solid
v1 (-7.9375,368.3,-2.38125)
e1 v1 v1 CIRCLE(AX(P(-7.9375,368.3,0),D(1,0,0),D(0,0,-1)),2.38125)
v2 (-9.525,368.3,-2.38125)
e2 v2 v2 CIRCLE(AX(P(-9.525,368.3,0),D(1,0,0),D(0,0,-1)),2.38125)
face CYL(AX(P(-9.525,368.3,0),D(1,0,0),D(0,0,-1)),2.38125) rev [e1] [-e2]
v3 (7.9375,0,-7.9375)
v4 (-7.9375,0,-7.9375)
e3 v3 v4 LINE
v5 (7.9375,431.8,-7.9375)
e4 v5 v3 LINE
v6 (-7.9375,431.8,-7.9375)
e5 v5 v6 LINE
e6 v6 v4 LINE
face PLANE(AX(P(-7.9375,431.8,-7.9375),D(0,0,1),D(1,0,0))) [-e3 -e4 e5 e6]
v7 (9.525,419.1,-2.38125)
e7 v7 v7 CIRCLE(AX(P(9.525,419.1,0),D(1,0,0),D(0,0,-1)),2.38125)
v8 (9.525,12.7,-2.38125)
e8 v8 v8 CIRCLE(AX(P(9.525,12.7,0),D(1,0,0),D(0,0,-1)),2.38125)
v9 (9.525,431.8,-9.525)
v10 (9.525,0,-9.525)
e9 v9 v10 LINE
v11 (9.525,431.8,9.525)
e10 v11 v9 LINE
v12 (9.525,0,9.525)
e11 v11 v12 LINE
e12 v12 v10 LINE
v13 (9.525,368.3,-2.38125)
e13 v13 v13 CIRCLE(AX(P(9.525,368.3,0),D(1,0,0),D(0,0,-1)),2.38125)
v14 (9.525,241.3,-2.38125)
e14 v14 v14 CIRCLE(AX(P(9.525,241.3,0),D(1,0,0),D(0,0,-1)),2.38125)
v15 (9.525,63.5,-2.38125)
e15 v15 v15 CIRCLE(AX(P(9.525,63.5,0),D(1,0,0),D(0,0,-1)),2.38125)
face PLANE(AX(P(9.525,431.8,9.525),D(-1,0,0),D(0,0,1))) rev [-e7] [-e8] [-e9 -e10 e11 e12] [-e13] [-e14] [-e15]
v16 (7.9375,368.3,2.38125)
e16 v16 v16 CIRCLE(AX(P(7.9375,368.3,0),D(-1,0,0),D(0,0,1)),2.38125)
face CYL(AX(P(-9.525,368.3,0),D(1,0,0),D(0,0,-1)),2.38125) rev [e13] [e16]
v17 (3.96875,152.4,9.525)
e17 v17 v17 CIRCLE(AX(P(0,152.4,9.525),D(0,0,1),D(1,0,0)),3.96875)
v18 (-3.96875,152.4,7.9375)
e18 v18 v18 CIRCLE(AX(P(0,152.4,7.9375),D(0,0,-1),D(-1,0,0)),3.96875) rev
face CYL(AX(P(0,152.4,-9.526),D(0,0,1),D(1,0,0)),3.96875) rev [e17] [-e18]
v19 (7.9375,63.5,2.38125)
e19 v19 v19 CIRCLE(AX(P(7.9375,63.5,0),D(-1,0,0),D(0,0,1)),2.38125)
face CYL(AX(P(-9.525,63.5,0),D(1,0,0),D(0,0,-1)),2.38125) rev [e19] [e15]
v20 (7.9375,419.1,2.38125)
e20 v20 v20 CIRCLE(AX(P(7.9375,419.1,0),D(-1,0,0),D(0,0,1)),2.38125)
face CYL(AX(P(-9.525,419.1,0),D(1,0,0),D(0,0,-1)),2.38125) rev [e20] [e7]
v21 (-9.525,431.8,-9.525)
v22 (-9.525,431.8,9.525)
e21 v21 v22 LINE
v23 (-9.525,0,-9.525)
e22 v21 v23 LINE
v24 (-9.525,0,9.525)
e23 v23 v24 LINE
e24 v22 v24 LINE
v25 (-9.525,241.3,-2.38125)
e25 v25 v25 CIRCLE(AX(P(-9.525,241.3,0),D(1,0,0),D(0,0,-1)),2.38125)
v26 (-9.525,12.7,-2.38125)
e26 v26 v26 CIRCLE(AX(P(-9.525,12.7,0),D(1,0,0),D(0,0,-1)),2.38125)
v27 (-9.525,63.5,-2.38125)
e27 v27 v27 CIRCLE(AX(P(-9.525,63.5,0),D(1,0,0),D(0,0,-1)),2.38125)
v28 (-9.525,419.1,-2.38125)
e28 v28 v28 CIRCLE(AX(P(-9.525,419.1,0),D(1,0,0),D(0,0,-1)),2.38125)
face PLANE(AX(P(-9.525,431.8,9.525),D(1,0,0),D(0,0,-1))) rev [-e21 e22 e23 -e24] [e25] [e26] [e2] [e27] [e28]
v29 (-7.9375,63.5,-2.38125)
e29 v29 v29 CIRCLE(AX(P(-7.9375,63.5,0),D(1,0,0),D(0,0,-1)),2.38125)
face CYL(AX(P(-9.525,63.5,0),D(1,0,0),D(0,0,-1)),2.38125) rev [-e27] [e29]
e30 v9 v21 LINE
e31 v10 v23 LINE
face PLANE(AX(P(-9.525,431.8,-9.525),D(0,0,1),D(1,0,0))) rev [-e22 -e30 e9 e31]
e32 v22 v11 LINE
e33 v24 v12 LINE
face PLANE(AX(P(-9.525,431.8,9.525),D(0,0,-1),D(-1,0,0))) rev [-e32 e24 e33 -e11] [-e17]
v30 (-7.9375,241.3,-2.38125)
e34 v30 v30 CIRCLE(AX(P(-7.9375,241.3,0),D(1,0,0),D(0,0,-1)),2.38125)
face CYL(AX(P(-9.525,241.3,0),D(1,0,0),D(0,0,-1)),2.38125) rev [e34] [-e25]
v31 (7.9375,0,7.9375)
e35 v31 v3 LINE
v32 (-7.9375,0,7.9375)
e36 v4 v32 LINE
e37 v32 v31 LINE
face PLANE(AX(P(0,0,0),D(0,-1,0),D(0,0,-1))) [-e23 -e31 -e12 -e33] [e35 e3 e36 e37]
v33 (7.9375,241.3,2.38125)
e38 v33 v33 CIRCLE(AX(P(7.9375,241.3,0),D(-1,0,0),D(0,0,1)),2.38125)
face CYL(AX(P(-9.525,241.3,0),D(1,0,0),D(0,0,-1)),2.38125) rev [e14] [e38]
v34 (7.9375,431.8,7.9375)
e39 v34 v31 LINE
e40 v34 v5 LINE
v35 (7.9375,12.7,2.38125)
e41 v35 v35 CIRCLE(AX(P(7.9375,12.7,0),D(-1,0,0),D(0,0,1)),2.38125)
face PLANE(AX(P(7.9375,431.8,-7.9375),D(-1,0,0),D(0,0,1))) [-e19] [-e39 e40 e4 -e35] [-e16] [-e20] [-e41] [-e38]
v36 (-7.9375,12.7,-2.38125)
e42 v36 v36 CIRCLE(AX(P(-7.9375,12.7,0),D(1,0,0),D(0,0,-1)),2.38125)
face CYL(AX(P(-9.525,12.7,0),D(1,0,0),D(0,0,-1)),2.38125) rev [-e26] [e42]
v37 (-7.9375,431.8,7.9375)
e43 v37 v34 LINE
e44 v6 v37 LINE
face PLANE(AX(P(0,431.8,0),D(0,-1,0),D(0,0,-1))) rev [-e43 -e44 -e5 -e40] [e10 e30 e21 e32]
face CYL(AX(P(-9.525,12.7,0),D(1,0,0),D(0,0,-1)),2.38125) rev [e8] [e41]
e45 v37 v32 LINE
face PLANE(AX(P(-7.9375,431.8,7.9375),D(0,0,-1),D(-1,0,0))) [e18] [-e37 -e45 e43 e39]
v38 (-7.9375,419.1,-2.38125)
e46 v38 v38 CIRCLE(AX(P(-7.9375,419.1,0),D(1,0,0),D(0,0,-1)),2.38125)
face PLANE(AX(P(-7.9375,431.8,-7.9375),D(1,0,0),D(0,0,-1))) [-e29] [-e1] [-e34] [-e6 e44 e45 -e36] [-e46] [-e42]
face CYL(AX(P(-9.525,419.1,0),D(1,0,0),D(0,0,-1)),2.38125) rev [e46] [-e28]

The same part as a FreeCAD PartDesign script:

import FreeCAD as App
import Part
import Sketcher
from FreeCAD import Vector
Q = App.Units.Quantity

doc = App.newDocument("Part")
body = doc.addObject("PartDesign::Body", "Body")

sketch1 = body.newObject("Sketcher::SketchObject", "Sketch")
sketch1.AttachmentSupport = (doc.getObject("XZ_Plane"), [""])
sketch1.MapMode = "FlatFace"
sketch1.addGeometry([
    Part.LineSegment(Vector(-10, -10, 0), Vector(-10, 10, 0)),
    Part.LineSegment(Vector(-10, 10, 0), Vector(10, 10, 0)),
    Part.LineSegment(Vector(10, 10, 0), Vector(10, -10, 0)),
    Part.LineSegment(Vector(10, -10, 0), Vector(-10, -10, 0)),
    Part.LineSegment(Vector(8, 8, 0), Vector(-8, 8, 0)),
    Part.LineSegment(Vector(-8, 8, 0), Vector(-8, -8, 0)),
    Part.LineSegment(Vector(-8, -8, 0), Vector(8, -8, 0)),
    Part.LineSegment(Vector(8, -8, 0), Vector(8, 8, 0)),
], False)
sketch1.addConstraint([
    Sketcher.Constraint("Coincident", 0, 2, 1, 1),
    Sketcher.Constraint("Coincident", 1, 2, 2, 1),
    Sketcher.Constraint("Coincident", 2, 2, 3, 1),
    Sketcher.Constraint("Coincident", 3, 2, 0, 1),
    Sketcher.Constraint("Coincident", 4, 2, 5, 1),
    Sketcher.Constraint("Coincident", 5, 2, 6, 1),
    Sketcher.Constraint("Coincident", 6, 2, 7, 1),
    Sketcher.Constraint("Coincident", 7, 2, 4, 1),
    Sketcher.Constraint("Vertical", 0),
    Sketcher.Constraint("Horizontal", 1),
    Sketcher.Constraint("Vertical", 2),
    Sketcher.Constraint("Horizontal", 3),
    Sketcher.Constraint("Horizontal", 4),
    Sketcher.Constraint("Vertical", 5),
    Sketcher.Constraint("Horizontal", 6),
    Sketcher.Constraint("Vertical", 7),
    Sketcher.Constraint("Symmetric", 0, 2, 2, 2, -1, 1),
    Sketcher.Constraint("Symmetric", 4, 2, 6, 2, -1, 1),
    Sketcher.Constraint("Equal", 3, 0),
    Sketcher.Constraint("Equal", 6, 5),
    Sketcher.Constraint("DistanceX", 1, 1, 1, 2, Q("0.75 in")),
    Sketcher.Constraint("DistanceX", 4, 2, 4, 1, Q("0.625 in")),
])
pad1 = body.newObject("PartDesign::Pad", "Pad")
pad1.Profile = sketch1
pad1.Length = Q("17 in")
pad1.Reversed = True

sketch2 = body.newObject("Sketcher::SketchObject", "Sketch001")
sketch2.AttachmentSupport = (doc.getObject("XY_Plane"), [""])
sketch2.MapMode = "FlatFace"
sketch2.AttachmentOffset = App.Placement(Vector(0, 0, 0.375 * 25.4), App.Rotation())
sketch2.addGeometry(Part.Circle(Vector(0, 152.4, 0), Vector(0, 0, 1), 4), False)
sketch2.addConstraint([
    Sketcher.Constraint("PointOnObject", 0, 3, -2),
    Sketcher.Constraint("Diameter", 0, Q("0.3125 in")),
    Sketcher.Constraint("DistanceY", -1, 1, 0, 3, Q("6 in")),
])
pocket1 = body.newObject("PartDesign::Pocket", "Pocket")
pocket1.Profile = sketch2
pocket1.Type = "UpToFirst"

sketch3 = body.newObject("Sketcher::SketchObject", "Sketch002")
sketch3.AttachmentSupport = (doc.getObject("YZ_Plane"), [""])
sketch3.MapMode = "FlatFace"
sketch3.addGeometry([
    Part.Circle(Vector(12.7, 0, 0), Vector(0, 0, 1), 2.4),
    Part.Circle(Vector(63.5, 0, 0), Vector(0, 0, 1), 2.4),
    Part.Circle(Vector(241.3, 0, 0), Vector(0, 0, 1), 2.4),
    Part.Circle(Vector(368.3, 0, 0), Vector(0, 0, 1), 2.4),
    Part.Circle(Vector(419.1, 0, 0), Vector(0, 0, 1), 2.4),
], False)
sketch3.addConstraint([
    Sketcher.Constraint("Equal", 0, 1),
    Sketcher.Constraint("Equal", 1, 2),
    Sketcher.Constraint("Equal", 2, 3),
    Sketcher.Constraint("Equal", 3, 4),
    Sketcher.Constraint("PointOnObject", 0, 3, -1),
    Sketcher.Constraint("PointOnObject", 1, 3, -1),
    Sketcher.Constraint("PointOnObject", 2, 3, -1),
    Sketcher.Constraint("PointOnObject", 3, 3, -1),
    Sketcher.Constraint("PointOnObject", 4, 3, -1),
    Sketcher.Constraint("Diameter", 0, Q("0.1875 in")),
    Sketcher.Constraint("DistanceX", 0, 3, 1, 3, Q("2 in")),
    Sketcher.Constraint("DistanceX", 1, 3, 2, 3, Q("7 in")),
    Sketcher.Constraint("DistanceX", 2, 3, 3, 3, Q("5 in")),
    Sketcher.Constraint("DistanceX", 3, 3, 4, 3, Q("2 in")),
    Sketcher.Constraint("DistanceX", -1, 1, 0, 3, Q("0.5 in")),
])
pocket2 = body.newObject("PartDesign::Pocket", "Pocket001")
pocket2.Profile = sketch3
pocket2.Type = "ThroughAll"
pocket2.Midplane = True

doc.recompute()
